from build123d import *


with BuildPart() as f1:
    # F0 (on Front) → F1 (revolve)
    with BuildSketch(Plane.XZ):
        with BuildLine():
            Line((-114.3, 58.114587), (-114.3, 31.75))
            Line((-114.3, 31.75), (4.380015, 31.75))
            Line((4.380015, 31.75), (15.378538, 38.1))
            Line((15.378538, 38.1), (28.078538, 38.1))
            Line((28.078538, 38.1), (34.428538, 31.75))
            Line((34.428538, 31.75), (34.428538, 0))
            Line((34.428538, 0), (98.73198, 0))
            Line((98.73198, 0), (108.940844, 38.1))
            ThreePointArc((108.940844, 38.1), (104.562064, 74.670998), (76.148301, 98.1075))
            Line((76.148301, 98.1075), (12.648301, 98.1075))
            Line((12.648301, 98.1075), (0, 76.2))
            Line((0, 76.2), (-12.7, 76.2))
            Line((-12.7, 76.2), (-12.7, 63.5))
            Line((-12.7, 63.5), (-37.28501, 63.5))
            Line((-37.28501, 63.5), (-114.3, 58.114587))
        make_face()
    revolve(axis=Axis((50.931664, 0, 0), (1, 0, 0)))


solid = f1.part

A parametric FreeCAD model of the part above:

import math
import FreeCAD as App
import Part
import Sketcher

V = App.Vector
Q = App.Units.Quantity

doc = App.newDocument("Part")
body = doc.addObject("PartDesign::Body", "Body")

# Sketch on XZ plane
sketch1 = body.newObject("Sketcher::SketchObject", "Sketch")
sketch1.AttachmentSupport = (doc.getObject("XZ_Plane"), [""])
sketch1.MapMode = "FlatFace"
sketch1.addGeometry(Part.LineSegment(V(-114, 58, 0), V(-114, 32, 0)), False)
sketch1.addGeometry(Part.LineSegment(V(-114, 32, 0), V(4, 32, 0)), False)
sketch1.addGeometry(Part.LineSegment(V(4, 32, 0), V(15, 38, 0)), False)
sketch1.addGeometry(Part.LineSegment(V(15, 38, 0), V(28, 38, 0)), False)
sketch1.addGeometry(Part.LineSegment(V(28, 38, 0), V(34, 32, 0)), False)
sketch1.addGeometry(Part.LineSegment(V(34, 32, 0), V(34, 0, 0)), False)
sketch1.addGeometry(Part.LineSegment(V(34, 0, 0), V(99, 0, 0)), False)
sketch1.addGeometry(Part.LineSegment(V(99, 0, 0), V(109, 38, 0)), False)
sketch1.addGeometry(Part.ArcOfCircle(Part.Circle(V(61, 51, 0), V(0, 0, 1), 50), math.radians(-15), math.radians(72)), False)
sketch1.addGeometry(Part.LineSegment(V(76, 98, 0), V(13, 98, 0)), False)
sketch1.addGeometry(Part.LineSegment(V(13, 98, 0), V(0, 76, 0)), False)
sketch1.addGeometry(Part.LineSegment(V(0, 76, 0), V(-13, 76, 0)), False)
sketch1.addGeometry(Part.LineSegment(V(-13, 76, 0), V(-13, 64, 0)), False)
sketch1.addGeometry(Part.LineSegment(V(-13, 64, 0), V(-37, 64, 0)), False)
sketch1.addGeometry(Part.LineSegment(V(-37, 64, 0), V(-114, 58, 0)), False)
sketch1.addConstraint(Sketcher.Constraint("Coincident", 0, 2, 1, 1))
sketch1.addConstraint(Sketcher.Constraint("Coincident", 1, 2, 2, 1))
sketch1.addConstraint(Sketcher.Constraint("Coincident", 2, 2, 3, 1))
sketch1.addConstraint(Sketcher.Constraint("Coincident", 3, 2, 4, 1))
sketch1.addConstraint(Sketcher.Constraint("Coincident", 4, 2, 5, 1))
sketch1.addConstraint(Sketcher.Constraint("Coincident", 5, 2, 6, 1))
sketch1.addConstraint(Sketcher.Constraint("Coincident", 6, 2, 7, 1))
sketch1.addConstraint(Sketcher.Constraint("Tangent", 7, 2, 8, 1))
sketch1.addConstraint(Sketcher.Constraint("Coincident", 8, 2, 9, 1))
sketch1.addConstraint(Sketcher.Constraint("Coincident", 9, 2, 10, 1))
sketch1.addConstraint(Sketcher.Constraint("Coincident", 10, 2, 11, 1))
sketch1.addConstraint(Sketcher.Constraint("Coincident", 11, 2, 12, 1))
sketch1.addConstraint(Sketcher.Constraint("Coincident", 12, 2, 13, 1))
sketch1.addConstraint(Sketcher.Constraint("Coincident", 13, 2, 14, 1))
sketch1.addConstraint(Sketcher.Constraint("Coincident", 14, 2, 0, 1))
sketch1.addConstraint(Sketcher.Constraint("Vertical", 0))
sketch1.addConstraint(Sketcher.Constraint("Horizontal", 1))
sketch1.addConstraint(Sketcher.Constraint("Horizontal", 3))
sketch1.addConstraint(Sketcher.Constraint("Vertical", 5))
sketch1.addConstraint(Sketcher.Constraint("Horizontal", 6))
sketch1.addConstraint(Sketcher.Constraint("Horizontal", 9))
sketch1.addConstraint(Sketcher.Constraint("Horizontal", 11))
sketch1.addConstraint(Sketcher.Constraint("Vertical", 12))
sketch1.addConstraint(Sketcher.Constraint("Horizontal", 13))
sketch1.addConstraint(Sketcher.Constraint("PointOnObject", 5, 2, -1))
sketch1.addConstraint(Sketcher.Constraint("PointOnObject", 10, 2, -2))
sketch1.addConstraint(Sketcher.Constraint("Horizontal", 1, 2, 4, 2))
sketch1.addConstraint(Sketcher.Constraint("Horizontal", 3, 2, 7, 2))
sketch1.addConstraint(Sketcher.Constraint("Equal", 3, 11))
sketch1.addConstraint(Sketcher.Constraint("Equal", 11, 12))
sketch1.addConstraint(Sketcher.Constraint("Radius", 8, Q("1.95 in")))
sketch1.addConstraint(Sketcher.Constraint("DistanceX", 3, 1, 3, 2, Q("0.5 in")))
sketch1.addConstraint(Sketcher.Constraint("DistanceX", 9, 2, 9, 1, Q("2.5 in")))
sketch1.addConstraint(Sketcher.Constraint("DistanceY", -1, 1, 10, 2, Q("3 in")))
sketch1.addConstraint(Sketcher.Constraint("Angle", 2, Q("29.999999 deg")))
sketch1.addConstraint(Sketcher.Constraint("Angle", 4, Q("-45 deg")))
sketch1.addConstraint(Sketcher.Constraint("Angle", 7, Q("75 deg")))
sketch1.addConstraint(Sketcher.Constraint("Angle", 10, Q("-120 deg")))
sketch1.addConstraint(Sketcher.Constraint("Angle", 14, Q("-176 deg")))
sketch1.addConstraint(Sketcher.Constraint("DistanceY", 2, 2, 12, 2, Q("1 in")))
sketch1.addConstraint(Sketcher.Constraint("DistanceX", 14, 2, 12, 2, Q("4 in")))
sketch1.addConstraint(Sketcher.Constraint("Distance", 2, Q("0.5 in")))
sketch1.addConstraint(Sketcher.Constraint("DistanceX", 2, 2, 8, 3, Q("1.8 in")))
sketch1.addConstraint(Sketcher.Constraint("DistanceY", -1, 1, 8, 2, Q("3.8625 in")))
sketch1.addConstraint(Sketcher.Constraint("DistanceX", 13, 2, 13, 1, 24.58501))
revolution = body.newObject("PartDesign::Revolution", "Revolution")
revolution.Profile = sketch1
revolution.ReferenceAxis = (sketch1, ["H_Axis"])
revolution.Angle = 360

doc.recompute()
